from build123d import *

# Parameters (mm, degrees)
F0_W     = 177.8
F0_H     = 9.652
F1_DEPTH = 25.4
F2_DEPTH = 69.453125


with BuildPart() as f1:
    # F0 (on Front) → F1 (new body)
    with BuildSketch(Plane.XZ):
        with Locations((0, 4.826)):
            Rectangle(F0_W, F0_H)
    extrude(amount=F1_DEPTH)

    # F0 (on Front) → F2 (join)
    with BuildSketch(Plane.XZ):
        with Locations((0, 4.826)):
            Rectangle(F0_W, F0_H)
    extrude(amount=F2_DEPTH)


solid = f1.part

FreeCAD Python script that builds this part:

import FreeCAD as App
import Part
import Sketcher

V = App.Vector
Q = App.Units.Quantity


def add_polygon(sketch, points):
    """Adds a closed chain of lines whose ends are joined by coincident constraints."""
    first, n = sketch.GeometryCount, len(points)
    for a, b in zip(points, points[1:] + points[:1]):
        sketch.addGeometry(Part.LineSegment(App.Vector(*a, 0), App.Vector(*b, 0)), False)
    for i in range(n):
        sketch.addConstraint(Sketcher.Constraint("Coincident", first + i, 2, first + (i + 1) % n, 1))

doc = App.newDocument("Part")
body = doc.addObject("PartDesign::Body", "Body")

# Sketch on XZ plane
sketch1 = body.newObject("Sketcher::SketchObject", "Sketch")
sketch1.AttachmentSupport = (doc.getObject("XZ_Plane"), [""])
sketch1.MapMode = "FlatFace"
add_polygon(sketch1, [(-89, 10), (-89, 0), (89, 0), (89, 10)])  # lines 0-3
sketch1.addConstraint([
    Sketcher.Constraint("Vertical", 0),
    Sketcher.Constraint("Horizontal", 1),
    Sketcher.Constraint("Vertical", 2),
    Sketcher.Constraint("Horizontal", 3),
    Sketcher.Constraint("Symmetric", 0, 2, 1, 2, -1, 1),
    Sketcher.Constraint("DistanceX", 1, 1, 1, 2, Q("7 in")),
    Sketcher.Constraint("DistanceY", 0, 2, 0, 1, Q("0.38 in")),
])
pad1 = body.newObject("PartDesign::Pad", "Pad")
pad1.Profile = sketch1
pad1.Length = Q("1 in")

# Sketch on XZ plane
sketch2 = body.newObject("Sketcher::SketchObject", "Sketch001")
sketch2.AttachmentSupport = (doc.getObject("XZ_Plane"), [""])
sketch2.MapMode = "FlatFace"
add_polygon(sketch2, [(-89, 10), (-89, 0), (89, 0), (89, 10)])  # lines 0-3
sketch2.addConstraint([
    Sketcher.Constraint("Vertical", 0),
    Sketcher.Constraint("Horizontal", 1),
    Sketcher.Constraint("Vertical", 2),
    Sketcher.Constraint("Horizontal", 3),
    Sketcher.Constraint("Symmetric", 0, 2, 1, 2, -1, 1),
    Sketcher.Constraint("DistanceX", 1, 1, 1, 2, Q("7 in")),
    Sketcher.Constraint("DistanceY", 0, 2, 0, 1, Q("0.38 in")),
])
pad2 = body.newObject("PartDesign::Pad", "Pad001")
pad2.Profile = sketch2
pad2.Length = Q("2.734375 in")

doc.recompute()
